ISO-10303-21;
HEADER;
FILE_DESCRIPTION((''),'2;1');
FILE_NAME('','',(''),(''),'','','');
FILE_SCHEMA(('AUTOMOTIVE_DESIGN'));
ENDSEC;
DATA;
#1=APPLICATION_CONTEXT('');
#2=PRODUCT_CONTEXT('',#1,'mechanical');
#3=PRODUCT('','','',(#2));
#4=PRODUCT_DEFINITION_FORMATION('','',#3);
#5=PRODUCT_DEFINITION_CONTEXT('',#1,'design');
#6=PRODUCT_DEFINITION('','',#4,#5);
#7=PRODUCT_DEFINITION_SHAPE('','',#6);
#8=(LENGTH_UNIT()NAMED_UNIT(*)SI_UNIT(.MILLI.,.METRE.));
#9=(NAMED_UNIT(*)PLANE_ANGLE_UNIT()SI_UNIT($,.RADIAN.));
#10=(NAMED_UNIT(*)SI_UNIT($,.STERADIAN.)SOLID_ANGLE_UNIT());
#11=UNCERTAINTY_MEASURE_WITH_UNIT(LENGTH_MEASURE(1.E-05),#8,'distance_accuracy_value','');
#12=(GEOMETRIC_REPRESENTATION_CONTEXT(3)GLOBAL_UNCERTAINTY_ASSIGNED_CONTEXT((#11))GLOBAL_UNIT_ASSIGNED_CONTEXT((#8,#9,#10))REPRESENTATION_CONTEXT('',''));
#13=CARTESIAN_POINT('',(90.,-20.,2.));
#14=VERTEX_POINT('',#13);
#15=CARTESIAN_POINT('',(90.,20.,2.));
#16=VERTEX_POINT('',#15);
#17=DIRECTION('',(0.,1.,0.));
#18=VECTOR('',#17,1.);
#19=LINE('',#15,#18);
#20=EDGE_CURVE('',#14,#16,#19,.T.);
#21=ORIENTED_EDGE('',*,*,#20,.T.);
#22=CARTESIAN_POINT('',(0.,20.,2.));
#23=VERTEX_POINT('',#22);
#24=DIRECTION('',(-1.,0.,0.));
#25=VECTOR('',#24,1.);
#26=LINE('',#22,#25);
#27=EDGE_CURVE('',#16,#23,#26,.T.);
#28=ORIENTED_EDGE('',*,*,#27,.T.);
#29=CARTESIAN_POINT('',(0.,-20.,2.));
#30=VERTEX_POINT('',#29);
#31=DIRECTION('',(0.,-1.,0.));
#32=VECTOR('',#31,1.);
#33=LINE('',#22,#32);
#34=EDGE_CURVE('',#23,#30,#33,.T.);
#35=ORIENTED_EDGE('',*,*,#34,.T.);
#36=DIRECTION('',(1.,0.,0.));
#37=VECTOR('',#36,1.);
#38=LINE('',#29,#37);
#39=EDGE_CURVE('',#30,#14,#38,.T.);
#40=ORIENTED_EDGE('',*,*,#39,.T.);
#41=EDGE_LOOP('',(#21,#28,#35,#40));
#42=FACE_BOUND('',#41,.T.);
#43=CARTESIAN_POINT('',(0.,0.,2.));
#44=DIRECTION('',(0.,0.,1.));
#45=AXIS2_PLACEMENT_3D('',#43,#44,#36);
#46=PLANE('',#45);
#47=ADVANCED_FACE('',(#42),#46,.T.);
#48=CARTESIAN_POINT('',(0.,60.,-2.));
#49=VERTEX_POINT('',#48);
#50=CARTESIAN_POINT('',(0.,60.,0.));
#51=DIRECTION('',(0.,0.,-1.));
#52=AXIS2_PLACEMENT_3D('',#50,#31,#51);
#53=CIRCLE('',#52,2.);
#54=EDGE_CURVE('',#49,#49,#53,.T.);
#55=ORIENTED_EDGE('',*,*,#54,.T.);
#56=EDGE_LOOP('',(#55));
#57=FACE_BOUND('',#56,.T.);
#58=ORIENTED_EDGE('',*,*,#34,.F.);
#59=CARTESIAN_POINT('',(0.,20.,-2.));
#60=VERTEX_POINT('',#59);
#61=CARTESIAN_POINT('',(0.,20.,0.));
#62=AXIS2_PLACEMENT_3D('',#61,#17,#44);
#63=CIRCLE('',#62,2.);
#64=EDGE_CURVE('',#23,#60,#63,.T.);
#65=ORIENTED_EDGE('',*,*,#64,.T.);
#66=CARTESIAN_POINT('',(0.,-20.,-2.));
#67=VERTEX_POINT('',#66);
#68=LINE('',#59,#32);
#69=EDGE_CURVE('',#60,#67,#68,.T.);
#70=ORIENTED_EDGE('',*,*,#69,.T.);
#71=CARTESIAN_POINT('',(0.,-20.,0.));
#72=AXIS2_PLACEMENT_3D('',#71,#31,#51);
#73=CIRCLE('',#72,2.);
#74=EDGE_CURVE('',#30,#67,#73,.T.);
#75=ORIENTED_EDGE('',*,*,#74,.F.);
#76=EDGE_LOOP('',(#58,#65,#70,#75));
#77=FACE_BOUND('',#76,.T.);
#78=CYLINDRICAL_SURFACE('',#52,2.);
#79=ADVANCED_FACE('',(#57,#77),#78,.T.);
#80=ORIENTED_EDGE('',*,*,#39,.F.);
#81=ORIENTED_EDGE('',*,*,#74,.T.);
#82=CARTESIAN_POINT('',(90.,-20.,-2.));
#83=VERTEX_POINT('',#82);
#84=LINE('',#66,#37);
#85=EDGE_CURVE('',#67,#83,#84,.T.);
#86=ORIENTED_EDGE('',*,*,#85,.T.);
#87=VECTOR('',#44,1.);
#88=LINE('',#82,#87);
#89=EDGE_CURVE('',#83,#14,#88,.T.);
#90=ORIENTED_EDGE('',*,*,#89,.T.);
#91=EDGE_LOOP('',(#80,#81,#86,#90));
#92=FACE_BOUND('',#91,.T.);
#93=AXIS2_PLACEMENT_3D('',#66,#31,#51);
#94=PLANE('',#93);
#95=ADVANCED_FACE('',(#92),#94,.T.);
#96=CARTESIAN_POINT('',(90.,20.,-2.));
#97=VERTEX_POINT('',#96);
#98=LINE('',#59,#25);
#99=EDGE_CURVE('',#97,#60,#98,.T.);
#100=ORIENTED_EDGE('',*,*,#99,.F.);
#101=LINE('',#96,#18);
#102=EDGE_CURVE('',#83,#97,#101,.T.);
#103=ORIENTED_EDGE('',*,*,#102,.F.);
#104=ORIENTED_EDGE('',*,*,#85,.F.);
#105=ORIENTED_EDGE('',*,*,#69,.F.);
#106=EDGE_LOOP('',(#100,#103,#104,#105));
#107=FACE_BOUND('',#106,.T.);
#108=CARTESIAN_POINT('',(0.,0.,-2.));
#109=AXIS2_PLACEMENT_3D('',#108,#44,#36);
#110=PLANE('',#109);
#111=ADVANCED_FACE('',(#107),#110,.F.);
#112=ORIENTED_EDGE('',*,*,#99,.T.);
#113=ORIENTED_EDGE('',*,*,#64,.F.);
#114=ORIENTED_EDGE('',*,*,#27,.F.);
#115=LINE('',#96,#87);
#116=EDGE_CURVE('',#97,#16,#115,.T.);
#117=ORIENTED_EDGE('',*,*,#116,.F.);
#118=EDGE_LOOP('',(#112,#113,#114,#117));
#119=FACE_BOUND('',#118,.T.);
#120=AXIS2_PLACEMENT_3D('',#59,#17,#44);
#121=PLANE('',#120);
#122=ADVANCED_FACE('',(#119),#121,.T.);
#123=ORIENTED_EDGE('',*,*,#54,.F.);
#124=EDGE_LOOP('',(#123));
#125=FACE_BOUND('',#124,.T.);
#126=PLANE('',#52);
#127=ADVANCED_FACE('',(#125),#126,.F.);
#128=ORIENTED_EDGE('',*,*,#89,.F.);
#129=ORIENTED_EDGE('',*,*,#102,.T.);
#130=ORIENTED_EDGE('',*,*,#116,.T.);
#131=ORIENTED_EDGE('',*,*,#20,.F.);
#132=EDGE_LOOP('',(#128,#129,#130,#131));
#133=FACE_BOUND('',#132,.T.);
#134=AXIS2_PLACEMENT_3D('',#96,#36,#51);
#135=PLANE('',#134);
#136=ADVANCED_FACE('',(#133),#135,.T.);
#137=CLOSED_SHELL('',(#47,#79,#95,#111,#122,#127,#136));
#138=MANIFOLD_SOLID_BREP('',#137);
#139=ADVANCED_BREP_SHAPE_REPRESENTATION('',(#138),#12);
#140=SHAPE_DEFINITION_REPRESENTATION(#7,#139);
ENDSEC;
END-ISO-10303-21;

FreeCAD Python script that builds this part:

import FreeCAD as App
import Part
import Sketcher

V = App.Vector
Q = App.Units.Quantity

doc = App.newDocument("Part")
body = doc.addObject("PartDesign::Body", "Body")

sketch1 = doc.addObject("Sketcher::SketchObject", "Sketch")
body.addObject(sketch1)
sketch1.AttachmentSupport = (doc.XY_Plane, [""])
sketch1.MapMode = "FlatFace"
sketch1.addGeometry([
    Part.LineSegment(V(0, 20, 0), V(0, -20, 0)),
    Part.LineSegment(V(0, -20, 0), V(90, -20, 0)),
    Part.LineSegment(V(90, -20, 0), V(90, 20, 0)),
    Part.LineSegment(V(90, 20, 0), V(0, 20, 0)),
], False)
sketch1.addConstraint([
    Sketcher.Constraint("Coincident", 0, 2, 1, 1),
    Sketcher.Constraint("Coincident", 1, 2, 2, 1),
    Sketcher.Constraint("Coincident", 2, 2, 3, 1),
    Sketcher.Constraint("Coincident", 3, 2, 0, 1),
    Sketcher.Constraint("Vertical", 0),
    Sketcher.Constraint("Horizontal", 1),
    Sketcher.Constraint("Vertical", 2),
    Sketcher.Constraint("Horizontal", 3),
    Sketcher.Constraint("Symmetric", 0, 2, 3, 2, -1, 1),
    Sketcher.Constraint("DistanceX", 1, 1, 1, 2, Q("90 mm")),
    Sketcher.Constraint("DistanceY", 0, 2, 0, 1, Q("40 mm")),
])
pad1 = doc.addObject("PartDesign::Pad", "Pad")
body.addObject(pad1)
pad1.Profile = sketch1
pad1.Length = 4
pad1.Midplane = True

sketch2 = doc.addObject("Sketcher::SketchObject", "Sketch001")
body.addObject(sketch2)
sketch2.AttachmentSupport = (doc.XZ_Plane, [""])
sketch2.MapMode = "FlatFace"
sketch2.AttachmentOffset = App.Placement(V(0, 0, 20), App.Rotation())
sketch2.addGeometry(Part.Circle(V(0, 0, 0), V(0, 0, 1), 2), False)
sketch2.addConstraint([
    Sketcher.Constraint("Coincident", 0, 3, -1, 1),
    Sketcher.Constraint("Diameter", 0, Q("4 mm")),
])
pad2 = doc.addObject("PartDesign::Pad", "Pad001")
body.addObject(pad2)
pad2.Profile = sketch2
pad2.Length = 80
pad2.Reversed = True

doc.recompute()
